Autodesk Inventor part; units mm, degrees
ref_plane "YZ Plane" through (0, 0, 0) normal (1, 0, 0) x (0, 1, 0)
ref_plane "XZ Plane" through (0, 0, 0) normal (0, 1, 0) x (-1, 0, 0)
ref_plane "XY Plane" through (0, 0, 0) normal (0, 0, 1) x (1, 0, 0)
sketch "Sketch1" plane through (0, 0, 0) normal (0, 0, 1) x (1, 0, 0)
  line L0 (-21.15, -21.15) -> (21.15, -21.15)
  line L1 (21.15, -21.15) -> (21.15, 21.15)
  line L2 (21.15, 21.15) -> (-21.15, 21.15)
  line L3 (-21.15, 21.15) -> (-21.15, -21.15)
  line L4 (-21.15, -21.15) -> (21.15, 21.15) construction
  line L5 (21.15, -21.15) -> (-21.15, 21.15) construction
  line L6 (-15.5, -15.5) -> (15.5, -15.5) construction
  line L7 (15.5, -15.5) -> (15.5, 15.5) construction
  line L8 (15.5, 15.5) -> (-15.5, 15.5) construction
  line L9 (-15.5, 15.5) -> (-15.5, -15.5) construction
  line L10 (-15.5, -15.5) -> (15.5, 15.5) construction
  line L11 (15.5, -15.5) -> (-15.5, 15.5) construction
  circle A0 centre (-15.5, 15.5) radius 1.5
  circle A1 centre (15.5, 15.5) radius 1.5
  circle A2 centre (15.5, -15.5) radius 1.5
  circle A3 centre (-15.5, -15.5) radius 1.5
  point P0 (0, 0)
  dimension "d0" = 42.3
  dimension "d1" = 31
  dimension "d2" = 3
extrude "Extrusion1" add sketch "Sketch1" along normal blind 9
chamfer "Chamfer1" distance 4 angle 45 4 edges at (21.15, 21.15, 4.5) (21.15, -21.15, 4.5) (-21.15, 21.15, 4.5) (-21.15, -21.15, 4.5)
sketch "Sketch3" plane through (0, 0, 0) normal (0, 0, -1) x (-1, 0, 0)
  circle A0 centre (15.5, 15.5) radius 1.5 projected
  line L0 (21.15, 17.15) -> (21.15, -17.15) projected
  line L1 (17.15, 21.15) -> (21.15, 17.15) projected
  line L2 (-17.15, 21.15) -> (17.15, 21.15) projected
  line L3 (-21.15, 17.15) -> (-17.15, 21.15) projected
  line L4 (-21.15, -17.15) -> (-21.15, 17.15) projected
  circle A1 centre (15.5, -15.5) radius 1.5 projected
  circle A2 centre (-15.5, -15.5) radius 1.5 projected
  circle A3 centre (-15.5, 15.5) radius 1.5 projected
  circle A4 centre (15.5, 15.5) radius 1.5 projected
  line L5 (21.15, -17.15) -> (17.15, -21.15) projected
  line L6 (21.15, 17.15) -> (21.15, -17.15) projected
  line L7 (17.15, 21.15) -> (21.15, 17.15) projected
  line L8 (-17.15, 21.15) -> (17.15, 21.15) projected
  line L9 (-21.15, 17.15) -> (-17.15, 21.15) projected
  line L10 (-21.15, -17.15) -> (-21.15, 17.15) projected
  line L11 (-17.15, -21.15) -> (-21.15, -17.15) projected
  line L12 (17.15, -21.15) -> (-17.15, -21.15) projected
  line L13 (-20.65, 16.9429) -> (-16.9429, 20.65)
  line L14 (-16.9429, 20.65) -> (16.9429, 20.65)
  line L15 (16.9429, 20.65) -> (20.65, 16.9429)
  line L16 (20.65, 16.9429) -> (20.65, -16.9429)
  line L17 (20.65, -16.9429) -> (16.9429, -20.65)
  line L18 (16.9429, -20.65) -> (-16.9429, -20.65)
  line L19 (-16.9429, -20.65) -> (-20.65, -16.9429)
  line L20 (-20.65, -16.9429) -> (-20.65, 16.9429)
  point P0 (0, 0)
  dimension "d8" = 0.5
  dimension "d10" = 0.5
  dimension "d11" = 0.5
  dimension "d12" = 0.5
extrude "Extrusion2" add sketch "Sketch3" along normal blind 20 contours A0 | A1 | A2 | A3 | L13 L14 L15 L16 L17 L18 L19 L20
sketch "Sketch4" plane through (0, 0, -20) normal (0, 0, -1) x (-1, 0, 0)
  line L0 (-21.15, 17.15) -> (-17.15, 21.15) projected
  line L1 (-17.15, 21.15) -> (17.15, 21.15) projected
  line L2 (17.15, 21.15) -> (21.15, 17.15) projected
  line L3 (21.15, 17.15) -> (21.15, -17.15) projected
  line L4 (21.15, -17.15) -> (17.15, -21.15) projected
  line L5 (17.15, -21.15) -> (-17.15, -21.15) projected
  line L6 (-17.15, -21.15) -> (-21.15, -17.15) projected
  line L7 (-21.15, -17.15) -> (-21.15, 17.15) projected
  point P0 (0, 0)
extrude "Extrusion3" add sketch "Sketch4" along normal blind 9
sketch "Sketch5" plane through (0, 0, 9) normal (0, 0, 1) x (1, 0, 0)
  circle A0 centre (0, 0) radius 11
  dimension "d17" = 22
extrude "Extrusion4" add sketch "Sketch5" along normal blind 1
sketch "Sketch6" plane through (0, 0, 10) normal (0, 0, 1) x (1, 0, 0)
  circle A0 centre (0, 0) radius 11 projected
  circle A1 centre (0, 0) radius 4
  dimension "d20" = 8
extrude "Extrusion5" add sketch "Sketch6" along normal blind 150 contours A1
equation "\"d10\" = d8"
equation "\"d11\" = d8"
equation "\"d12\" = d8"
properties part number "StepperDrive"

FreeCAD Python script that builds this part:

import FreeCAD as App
import Part
import Sketcher
Q = App.Units.Quantity


def edges_at(feature, points):
    """Names of the edges that pass closest to the given points."""
    edges = feature.Shape.Edges
    near = lambda p: min(range(len(edges)), key=lambda i: edges[i].distToShape(Part.Vertex(*p))[0])
    return sorted({f"Edge{near(p) + 1}" for p in points})


def add_polygon(sketch, points):
    """Adds a closed chain of lines whose ends are joined by coincident constraints."""
    first, n = sketch.GeometryCount, len(points)
    for a, b in zip(points, points[1:] + points[:1]):
        sketch.addGeometry(Part.LineSegment(App.Vector(*a, 0), App.Vector(*b, 0)), False)
    for i in range(n):
        sketch.addConstraint(Sketcher.Constraint("Coincident", first + i, 2, first + (i + 1) % n, 1))

doc = App.newDocument("Part")
body = doc.addObject("PartDesign::Body", "Body")

sketch1 = body.newObject("Sketcher::SketchObject", "Sketch")
sketch1.AttachmentSupport = (doc.getObject("XY_Plane"), [""])
sketch1.MapMode = "FlatFace"
add_polygon(sketch1, [(-21.15, 21.15), (-21.15, -21.15), (21.15, -21.15), (21.15, 21.15)])
sketch1.addGeometry(Part.Circle(App.Vector(-15.5, -15.5, 0), App.Vector(0, 0, 1), 1.5), False)
sketch1.addGeometry(Part.Circle(App.Vector(15.5, -15.5, 0), App.Vector(0, 0, 1), 1.5), False)
sketch1.addGeometry(Part.Circle(App.Vector(-15.5, 15.5, 0), App.Vector(0, 0, 1), 1.5), False)
sketch1.addGeometry(Part.Circle(App.Vector(15.5, 15.5, 0), App.Vector(0, 0, 1), 1.5), False)
sketch1.addConstraint([
    Sketcher.Constraint("Vertical", 0),
    Sketcher.Constraint("Horizontal", 1),
    Sketcher.Constraint("Vertical", 2),
    Sketcher.Constraint("Horizontal", 3),
    Sketcher.Constraint("Equal", 4, 5),
    Sketcher.Constraint("Equal", 5, 6),
    Sketcher.Constraint("Equal", 6, 7),
    Sketcher.Constraint("Symmetric", 5, 3, 6, 3, -1, 1),
    Sketcher.Constraint("Symmetric", 4, 3, 7, 3, -1, 1),
    Sketcher.Constraint("Symmetric", 0, 2, 2, 2, -1, 1),
    Sketcher.Constraint("Symmetric", 4, 3, 5, 3, -2),
    Sketcher.Constraint("Equal", 3, 0),
    Sketcher.Constraint("Diameter", 4, Q("3 mm")),
    Sketcher.Constraint("DistanceX", 1, 1, 1, 2, Q("42.3 mm")),
    Sketcher.Constraint("DistanceX", 4, 3, 5, 3, Q("31 mm")),
    Sketcher.Constraint("DistanceY", 4, 3, 6, 3, Q("31 mm")),
])
pad1 = body.newObject("PartDesign::Pad", "Pad")
pad1.Profile = sketch1
pad1.Length = 9
doc.recompute()

chamfer = body.newObject("PartDesign::Chamfer", "Chamfer")
chamfer.Base = (pad1, edges_at(pad1, [
    (21.15, 21.15, 4.5),
    (21.15, -21.15, 4.5),
    (-21.15, 21.15, 4.5),
    (-21.15, -21.15, 4.5),
]))
chamfer.Size = 4

sketch2 = body.newObject("Sketcher::SketchObject", "Sketch001")
sketch2.AttachmentSupport = (doc.getObject("XY_Plane"), [""])
sketch2.MapMode = "FlatFace"
add_polygon(sketch2, [(16.9429, 20.65), (20.65, 16.9429), (20.65, -16.9429), (16.9429, -20.65), (-16.9429, -20.65), (-20.65, -16.9429), (-20.65, 16.9429), (-16.9429, 20.65)])
sketch2.addConstraint([
    Sketcher.Constraint("Vertical", 1),
    Sketcher.Constraint("Horizontal", 3),
    Sketcher.Constraint("Vertical", 5),
    Sketcher.Constraint("Horizontal", 7),
    Sketcher.Constraint("Symmetric", 0, 2, 4, 2, -1, 1),
    Sketcher.Constraint("Symmetric", 2, 2, 6, 2, -1, 1),
    Sketcher.Constraint("Perpendicular", 0, 2),
    Sketcher.Constraint("Perpendicular", 2, 4),
    Sketcher.Constraint("Perpendicular", 4, 6),
    Sketcher.Constraint("Horizontal", 1, 2, 4, 2),
    Sketcher.Constraint("Vertical", 3, 2, 6, 2),
    Sketcher.Constraint("Equal", 7, 1),
    Sketcher.Constraint("DistanceX", 4, 2, 1, 2, Q("41.3 mm")),
    Sketcher.Constraint("DistanceX", 3, 2, 3, 1, Q("33.8858 mm")),
])
pad2 = body.newObject("PartDesign::Pad", "Pad001")
pad2.Profile = sketch2
pad2.Length = 20
pad2.Reversed = True

sketch3 = body.newObject("Sketcher::SketchObject", "Sketch002")
sketch3.AttachmentSupport = (doc.getObject("XY_Plane"), [""])
sketch3.MapMode = "FlatFace"
sketch3.AttachmentOffset = App.Placement(App.Vector(0, 0, -20), App.Rotation())
add_polygon(sketch3, [(17.15, 21.15), (21.15, 17.15), (21.15, -17.15), (17.15, -21.15), (-17.15, -21.15), (-21.15, -17.15), (-21.15, 17.15), (-17.15, 21.15)])
sketch3.addConstraint([
    Sketcher.Constraint("Vertical", 1),
    Sketcher.Constraint("Horizontal", 3),
    Sketcher.Constraint("Vertical", 5),
    Sketcher.Constraint("Horizontal", 7),
    Sketcher.Constraint("Symmetric", 0, 2, 4, 2, -1, 1),
    Sketcher.Constraint("Symmetric", 2, 2, 6, 2, -1, 1),
    Sketcher.Constraint("Perpendicular", 0, 2),
    Sketcher.Constraint("Perpendicular", 2, 4),
    Sketcher.Constraint("Perpendicular", 4, 6),
    Sketcher.Constraint("Horizontal", 1, 2, 4, 2),
    Sketcher.Constraint("Vertical", 3, 2, 6, 2),
    Sketcher.Constraint("Equal", 7, 1),
    Sketcher.Constraint("DistanceX", 3, 2, 3, 1, Q("34.3 mm")),
    Sketcher.Constraint("DistanceX", 2, 2, 1, 2, Q("4 mm")),
])
pad3 = body.newObject("PartDesign::Pad", "Pad002")
pad3.Profile = sketch3
pad3.Length = 9
pad3.Reversed = True

sketch4 = body.newObject("Sketcher::SketchObject", "Sketch003")
sketch4.AttachmentSupport = (doc.getObject("XY_Plane"), [""])
sketch4.MapMode = "FlatFace"
sketch4.AttachmentOffset = App.Placement(App.Vector(0, 0, 9), App.Rotation())
sketch4.addGeometry(Part.Circle(App.Vector(0, 0, 0), App.Vector(0, 0, 1), 11), False)
sketch4.addConstraint([
    Sketcher.Constraint("Coincident", 0, 3, -1, 1),
    Sketcher.Constraint("Diameter", 0, Q("22 mm")),
])
pad4 = body.newObject("PartDesign::Pad", "Pad003")
pad4.Profile = sketch4
pad4.Length = 1

sketch5 = body.newObject("Sketcher::SketchObject", "Sketch004")
sketch5.AttachmentSupport = (doc.getObject("XY_Plane"), [""])
sketch5.MapMode = "FlatFace"
sketch5.AttachmentOffset = App.Placement(App.Vector(0, 0, 10), App.Rotation())
sketch5.addGeometry(Part.Circle(App.Vector(0, 0, 0), App.Vector(0, 0, 1), 4), False)
sketch5.addConstraint([
    Sketcher.Constraint("Coincident", 0, 3, -1, 1),
    Sketcher.Constraint("Diameter", 0, Q("8 mm")),
])
pad5 = body.newObject("PartDesign::Pad", "Pad004")
pad5.Profile = sketch5
pad5.Length = 150

doc.recompute()
